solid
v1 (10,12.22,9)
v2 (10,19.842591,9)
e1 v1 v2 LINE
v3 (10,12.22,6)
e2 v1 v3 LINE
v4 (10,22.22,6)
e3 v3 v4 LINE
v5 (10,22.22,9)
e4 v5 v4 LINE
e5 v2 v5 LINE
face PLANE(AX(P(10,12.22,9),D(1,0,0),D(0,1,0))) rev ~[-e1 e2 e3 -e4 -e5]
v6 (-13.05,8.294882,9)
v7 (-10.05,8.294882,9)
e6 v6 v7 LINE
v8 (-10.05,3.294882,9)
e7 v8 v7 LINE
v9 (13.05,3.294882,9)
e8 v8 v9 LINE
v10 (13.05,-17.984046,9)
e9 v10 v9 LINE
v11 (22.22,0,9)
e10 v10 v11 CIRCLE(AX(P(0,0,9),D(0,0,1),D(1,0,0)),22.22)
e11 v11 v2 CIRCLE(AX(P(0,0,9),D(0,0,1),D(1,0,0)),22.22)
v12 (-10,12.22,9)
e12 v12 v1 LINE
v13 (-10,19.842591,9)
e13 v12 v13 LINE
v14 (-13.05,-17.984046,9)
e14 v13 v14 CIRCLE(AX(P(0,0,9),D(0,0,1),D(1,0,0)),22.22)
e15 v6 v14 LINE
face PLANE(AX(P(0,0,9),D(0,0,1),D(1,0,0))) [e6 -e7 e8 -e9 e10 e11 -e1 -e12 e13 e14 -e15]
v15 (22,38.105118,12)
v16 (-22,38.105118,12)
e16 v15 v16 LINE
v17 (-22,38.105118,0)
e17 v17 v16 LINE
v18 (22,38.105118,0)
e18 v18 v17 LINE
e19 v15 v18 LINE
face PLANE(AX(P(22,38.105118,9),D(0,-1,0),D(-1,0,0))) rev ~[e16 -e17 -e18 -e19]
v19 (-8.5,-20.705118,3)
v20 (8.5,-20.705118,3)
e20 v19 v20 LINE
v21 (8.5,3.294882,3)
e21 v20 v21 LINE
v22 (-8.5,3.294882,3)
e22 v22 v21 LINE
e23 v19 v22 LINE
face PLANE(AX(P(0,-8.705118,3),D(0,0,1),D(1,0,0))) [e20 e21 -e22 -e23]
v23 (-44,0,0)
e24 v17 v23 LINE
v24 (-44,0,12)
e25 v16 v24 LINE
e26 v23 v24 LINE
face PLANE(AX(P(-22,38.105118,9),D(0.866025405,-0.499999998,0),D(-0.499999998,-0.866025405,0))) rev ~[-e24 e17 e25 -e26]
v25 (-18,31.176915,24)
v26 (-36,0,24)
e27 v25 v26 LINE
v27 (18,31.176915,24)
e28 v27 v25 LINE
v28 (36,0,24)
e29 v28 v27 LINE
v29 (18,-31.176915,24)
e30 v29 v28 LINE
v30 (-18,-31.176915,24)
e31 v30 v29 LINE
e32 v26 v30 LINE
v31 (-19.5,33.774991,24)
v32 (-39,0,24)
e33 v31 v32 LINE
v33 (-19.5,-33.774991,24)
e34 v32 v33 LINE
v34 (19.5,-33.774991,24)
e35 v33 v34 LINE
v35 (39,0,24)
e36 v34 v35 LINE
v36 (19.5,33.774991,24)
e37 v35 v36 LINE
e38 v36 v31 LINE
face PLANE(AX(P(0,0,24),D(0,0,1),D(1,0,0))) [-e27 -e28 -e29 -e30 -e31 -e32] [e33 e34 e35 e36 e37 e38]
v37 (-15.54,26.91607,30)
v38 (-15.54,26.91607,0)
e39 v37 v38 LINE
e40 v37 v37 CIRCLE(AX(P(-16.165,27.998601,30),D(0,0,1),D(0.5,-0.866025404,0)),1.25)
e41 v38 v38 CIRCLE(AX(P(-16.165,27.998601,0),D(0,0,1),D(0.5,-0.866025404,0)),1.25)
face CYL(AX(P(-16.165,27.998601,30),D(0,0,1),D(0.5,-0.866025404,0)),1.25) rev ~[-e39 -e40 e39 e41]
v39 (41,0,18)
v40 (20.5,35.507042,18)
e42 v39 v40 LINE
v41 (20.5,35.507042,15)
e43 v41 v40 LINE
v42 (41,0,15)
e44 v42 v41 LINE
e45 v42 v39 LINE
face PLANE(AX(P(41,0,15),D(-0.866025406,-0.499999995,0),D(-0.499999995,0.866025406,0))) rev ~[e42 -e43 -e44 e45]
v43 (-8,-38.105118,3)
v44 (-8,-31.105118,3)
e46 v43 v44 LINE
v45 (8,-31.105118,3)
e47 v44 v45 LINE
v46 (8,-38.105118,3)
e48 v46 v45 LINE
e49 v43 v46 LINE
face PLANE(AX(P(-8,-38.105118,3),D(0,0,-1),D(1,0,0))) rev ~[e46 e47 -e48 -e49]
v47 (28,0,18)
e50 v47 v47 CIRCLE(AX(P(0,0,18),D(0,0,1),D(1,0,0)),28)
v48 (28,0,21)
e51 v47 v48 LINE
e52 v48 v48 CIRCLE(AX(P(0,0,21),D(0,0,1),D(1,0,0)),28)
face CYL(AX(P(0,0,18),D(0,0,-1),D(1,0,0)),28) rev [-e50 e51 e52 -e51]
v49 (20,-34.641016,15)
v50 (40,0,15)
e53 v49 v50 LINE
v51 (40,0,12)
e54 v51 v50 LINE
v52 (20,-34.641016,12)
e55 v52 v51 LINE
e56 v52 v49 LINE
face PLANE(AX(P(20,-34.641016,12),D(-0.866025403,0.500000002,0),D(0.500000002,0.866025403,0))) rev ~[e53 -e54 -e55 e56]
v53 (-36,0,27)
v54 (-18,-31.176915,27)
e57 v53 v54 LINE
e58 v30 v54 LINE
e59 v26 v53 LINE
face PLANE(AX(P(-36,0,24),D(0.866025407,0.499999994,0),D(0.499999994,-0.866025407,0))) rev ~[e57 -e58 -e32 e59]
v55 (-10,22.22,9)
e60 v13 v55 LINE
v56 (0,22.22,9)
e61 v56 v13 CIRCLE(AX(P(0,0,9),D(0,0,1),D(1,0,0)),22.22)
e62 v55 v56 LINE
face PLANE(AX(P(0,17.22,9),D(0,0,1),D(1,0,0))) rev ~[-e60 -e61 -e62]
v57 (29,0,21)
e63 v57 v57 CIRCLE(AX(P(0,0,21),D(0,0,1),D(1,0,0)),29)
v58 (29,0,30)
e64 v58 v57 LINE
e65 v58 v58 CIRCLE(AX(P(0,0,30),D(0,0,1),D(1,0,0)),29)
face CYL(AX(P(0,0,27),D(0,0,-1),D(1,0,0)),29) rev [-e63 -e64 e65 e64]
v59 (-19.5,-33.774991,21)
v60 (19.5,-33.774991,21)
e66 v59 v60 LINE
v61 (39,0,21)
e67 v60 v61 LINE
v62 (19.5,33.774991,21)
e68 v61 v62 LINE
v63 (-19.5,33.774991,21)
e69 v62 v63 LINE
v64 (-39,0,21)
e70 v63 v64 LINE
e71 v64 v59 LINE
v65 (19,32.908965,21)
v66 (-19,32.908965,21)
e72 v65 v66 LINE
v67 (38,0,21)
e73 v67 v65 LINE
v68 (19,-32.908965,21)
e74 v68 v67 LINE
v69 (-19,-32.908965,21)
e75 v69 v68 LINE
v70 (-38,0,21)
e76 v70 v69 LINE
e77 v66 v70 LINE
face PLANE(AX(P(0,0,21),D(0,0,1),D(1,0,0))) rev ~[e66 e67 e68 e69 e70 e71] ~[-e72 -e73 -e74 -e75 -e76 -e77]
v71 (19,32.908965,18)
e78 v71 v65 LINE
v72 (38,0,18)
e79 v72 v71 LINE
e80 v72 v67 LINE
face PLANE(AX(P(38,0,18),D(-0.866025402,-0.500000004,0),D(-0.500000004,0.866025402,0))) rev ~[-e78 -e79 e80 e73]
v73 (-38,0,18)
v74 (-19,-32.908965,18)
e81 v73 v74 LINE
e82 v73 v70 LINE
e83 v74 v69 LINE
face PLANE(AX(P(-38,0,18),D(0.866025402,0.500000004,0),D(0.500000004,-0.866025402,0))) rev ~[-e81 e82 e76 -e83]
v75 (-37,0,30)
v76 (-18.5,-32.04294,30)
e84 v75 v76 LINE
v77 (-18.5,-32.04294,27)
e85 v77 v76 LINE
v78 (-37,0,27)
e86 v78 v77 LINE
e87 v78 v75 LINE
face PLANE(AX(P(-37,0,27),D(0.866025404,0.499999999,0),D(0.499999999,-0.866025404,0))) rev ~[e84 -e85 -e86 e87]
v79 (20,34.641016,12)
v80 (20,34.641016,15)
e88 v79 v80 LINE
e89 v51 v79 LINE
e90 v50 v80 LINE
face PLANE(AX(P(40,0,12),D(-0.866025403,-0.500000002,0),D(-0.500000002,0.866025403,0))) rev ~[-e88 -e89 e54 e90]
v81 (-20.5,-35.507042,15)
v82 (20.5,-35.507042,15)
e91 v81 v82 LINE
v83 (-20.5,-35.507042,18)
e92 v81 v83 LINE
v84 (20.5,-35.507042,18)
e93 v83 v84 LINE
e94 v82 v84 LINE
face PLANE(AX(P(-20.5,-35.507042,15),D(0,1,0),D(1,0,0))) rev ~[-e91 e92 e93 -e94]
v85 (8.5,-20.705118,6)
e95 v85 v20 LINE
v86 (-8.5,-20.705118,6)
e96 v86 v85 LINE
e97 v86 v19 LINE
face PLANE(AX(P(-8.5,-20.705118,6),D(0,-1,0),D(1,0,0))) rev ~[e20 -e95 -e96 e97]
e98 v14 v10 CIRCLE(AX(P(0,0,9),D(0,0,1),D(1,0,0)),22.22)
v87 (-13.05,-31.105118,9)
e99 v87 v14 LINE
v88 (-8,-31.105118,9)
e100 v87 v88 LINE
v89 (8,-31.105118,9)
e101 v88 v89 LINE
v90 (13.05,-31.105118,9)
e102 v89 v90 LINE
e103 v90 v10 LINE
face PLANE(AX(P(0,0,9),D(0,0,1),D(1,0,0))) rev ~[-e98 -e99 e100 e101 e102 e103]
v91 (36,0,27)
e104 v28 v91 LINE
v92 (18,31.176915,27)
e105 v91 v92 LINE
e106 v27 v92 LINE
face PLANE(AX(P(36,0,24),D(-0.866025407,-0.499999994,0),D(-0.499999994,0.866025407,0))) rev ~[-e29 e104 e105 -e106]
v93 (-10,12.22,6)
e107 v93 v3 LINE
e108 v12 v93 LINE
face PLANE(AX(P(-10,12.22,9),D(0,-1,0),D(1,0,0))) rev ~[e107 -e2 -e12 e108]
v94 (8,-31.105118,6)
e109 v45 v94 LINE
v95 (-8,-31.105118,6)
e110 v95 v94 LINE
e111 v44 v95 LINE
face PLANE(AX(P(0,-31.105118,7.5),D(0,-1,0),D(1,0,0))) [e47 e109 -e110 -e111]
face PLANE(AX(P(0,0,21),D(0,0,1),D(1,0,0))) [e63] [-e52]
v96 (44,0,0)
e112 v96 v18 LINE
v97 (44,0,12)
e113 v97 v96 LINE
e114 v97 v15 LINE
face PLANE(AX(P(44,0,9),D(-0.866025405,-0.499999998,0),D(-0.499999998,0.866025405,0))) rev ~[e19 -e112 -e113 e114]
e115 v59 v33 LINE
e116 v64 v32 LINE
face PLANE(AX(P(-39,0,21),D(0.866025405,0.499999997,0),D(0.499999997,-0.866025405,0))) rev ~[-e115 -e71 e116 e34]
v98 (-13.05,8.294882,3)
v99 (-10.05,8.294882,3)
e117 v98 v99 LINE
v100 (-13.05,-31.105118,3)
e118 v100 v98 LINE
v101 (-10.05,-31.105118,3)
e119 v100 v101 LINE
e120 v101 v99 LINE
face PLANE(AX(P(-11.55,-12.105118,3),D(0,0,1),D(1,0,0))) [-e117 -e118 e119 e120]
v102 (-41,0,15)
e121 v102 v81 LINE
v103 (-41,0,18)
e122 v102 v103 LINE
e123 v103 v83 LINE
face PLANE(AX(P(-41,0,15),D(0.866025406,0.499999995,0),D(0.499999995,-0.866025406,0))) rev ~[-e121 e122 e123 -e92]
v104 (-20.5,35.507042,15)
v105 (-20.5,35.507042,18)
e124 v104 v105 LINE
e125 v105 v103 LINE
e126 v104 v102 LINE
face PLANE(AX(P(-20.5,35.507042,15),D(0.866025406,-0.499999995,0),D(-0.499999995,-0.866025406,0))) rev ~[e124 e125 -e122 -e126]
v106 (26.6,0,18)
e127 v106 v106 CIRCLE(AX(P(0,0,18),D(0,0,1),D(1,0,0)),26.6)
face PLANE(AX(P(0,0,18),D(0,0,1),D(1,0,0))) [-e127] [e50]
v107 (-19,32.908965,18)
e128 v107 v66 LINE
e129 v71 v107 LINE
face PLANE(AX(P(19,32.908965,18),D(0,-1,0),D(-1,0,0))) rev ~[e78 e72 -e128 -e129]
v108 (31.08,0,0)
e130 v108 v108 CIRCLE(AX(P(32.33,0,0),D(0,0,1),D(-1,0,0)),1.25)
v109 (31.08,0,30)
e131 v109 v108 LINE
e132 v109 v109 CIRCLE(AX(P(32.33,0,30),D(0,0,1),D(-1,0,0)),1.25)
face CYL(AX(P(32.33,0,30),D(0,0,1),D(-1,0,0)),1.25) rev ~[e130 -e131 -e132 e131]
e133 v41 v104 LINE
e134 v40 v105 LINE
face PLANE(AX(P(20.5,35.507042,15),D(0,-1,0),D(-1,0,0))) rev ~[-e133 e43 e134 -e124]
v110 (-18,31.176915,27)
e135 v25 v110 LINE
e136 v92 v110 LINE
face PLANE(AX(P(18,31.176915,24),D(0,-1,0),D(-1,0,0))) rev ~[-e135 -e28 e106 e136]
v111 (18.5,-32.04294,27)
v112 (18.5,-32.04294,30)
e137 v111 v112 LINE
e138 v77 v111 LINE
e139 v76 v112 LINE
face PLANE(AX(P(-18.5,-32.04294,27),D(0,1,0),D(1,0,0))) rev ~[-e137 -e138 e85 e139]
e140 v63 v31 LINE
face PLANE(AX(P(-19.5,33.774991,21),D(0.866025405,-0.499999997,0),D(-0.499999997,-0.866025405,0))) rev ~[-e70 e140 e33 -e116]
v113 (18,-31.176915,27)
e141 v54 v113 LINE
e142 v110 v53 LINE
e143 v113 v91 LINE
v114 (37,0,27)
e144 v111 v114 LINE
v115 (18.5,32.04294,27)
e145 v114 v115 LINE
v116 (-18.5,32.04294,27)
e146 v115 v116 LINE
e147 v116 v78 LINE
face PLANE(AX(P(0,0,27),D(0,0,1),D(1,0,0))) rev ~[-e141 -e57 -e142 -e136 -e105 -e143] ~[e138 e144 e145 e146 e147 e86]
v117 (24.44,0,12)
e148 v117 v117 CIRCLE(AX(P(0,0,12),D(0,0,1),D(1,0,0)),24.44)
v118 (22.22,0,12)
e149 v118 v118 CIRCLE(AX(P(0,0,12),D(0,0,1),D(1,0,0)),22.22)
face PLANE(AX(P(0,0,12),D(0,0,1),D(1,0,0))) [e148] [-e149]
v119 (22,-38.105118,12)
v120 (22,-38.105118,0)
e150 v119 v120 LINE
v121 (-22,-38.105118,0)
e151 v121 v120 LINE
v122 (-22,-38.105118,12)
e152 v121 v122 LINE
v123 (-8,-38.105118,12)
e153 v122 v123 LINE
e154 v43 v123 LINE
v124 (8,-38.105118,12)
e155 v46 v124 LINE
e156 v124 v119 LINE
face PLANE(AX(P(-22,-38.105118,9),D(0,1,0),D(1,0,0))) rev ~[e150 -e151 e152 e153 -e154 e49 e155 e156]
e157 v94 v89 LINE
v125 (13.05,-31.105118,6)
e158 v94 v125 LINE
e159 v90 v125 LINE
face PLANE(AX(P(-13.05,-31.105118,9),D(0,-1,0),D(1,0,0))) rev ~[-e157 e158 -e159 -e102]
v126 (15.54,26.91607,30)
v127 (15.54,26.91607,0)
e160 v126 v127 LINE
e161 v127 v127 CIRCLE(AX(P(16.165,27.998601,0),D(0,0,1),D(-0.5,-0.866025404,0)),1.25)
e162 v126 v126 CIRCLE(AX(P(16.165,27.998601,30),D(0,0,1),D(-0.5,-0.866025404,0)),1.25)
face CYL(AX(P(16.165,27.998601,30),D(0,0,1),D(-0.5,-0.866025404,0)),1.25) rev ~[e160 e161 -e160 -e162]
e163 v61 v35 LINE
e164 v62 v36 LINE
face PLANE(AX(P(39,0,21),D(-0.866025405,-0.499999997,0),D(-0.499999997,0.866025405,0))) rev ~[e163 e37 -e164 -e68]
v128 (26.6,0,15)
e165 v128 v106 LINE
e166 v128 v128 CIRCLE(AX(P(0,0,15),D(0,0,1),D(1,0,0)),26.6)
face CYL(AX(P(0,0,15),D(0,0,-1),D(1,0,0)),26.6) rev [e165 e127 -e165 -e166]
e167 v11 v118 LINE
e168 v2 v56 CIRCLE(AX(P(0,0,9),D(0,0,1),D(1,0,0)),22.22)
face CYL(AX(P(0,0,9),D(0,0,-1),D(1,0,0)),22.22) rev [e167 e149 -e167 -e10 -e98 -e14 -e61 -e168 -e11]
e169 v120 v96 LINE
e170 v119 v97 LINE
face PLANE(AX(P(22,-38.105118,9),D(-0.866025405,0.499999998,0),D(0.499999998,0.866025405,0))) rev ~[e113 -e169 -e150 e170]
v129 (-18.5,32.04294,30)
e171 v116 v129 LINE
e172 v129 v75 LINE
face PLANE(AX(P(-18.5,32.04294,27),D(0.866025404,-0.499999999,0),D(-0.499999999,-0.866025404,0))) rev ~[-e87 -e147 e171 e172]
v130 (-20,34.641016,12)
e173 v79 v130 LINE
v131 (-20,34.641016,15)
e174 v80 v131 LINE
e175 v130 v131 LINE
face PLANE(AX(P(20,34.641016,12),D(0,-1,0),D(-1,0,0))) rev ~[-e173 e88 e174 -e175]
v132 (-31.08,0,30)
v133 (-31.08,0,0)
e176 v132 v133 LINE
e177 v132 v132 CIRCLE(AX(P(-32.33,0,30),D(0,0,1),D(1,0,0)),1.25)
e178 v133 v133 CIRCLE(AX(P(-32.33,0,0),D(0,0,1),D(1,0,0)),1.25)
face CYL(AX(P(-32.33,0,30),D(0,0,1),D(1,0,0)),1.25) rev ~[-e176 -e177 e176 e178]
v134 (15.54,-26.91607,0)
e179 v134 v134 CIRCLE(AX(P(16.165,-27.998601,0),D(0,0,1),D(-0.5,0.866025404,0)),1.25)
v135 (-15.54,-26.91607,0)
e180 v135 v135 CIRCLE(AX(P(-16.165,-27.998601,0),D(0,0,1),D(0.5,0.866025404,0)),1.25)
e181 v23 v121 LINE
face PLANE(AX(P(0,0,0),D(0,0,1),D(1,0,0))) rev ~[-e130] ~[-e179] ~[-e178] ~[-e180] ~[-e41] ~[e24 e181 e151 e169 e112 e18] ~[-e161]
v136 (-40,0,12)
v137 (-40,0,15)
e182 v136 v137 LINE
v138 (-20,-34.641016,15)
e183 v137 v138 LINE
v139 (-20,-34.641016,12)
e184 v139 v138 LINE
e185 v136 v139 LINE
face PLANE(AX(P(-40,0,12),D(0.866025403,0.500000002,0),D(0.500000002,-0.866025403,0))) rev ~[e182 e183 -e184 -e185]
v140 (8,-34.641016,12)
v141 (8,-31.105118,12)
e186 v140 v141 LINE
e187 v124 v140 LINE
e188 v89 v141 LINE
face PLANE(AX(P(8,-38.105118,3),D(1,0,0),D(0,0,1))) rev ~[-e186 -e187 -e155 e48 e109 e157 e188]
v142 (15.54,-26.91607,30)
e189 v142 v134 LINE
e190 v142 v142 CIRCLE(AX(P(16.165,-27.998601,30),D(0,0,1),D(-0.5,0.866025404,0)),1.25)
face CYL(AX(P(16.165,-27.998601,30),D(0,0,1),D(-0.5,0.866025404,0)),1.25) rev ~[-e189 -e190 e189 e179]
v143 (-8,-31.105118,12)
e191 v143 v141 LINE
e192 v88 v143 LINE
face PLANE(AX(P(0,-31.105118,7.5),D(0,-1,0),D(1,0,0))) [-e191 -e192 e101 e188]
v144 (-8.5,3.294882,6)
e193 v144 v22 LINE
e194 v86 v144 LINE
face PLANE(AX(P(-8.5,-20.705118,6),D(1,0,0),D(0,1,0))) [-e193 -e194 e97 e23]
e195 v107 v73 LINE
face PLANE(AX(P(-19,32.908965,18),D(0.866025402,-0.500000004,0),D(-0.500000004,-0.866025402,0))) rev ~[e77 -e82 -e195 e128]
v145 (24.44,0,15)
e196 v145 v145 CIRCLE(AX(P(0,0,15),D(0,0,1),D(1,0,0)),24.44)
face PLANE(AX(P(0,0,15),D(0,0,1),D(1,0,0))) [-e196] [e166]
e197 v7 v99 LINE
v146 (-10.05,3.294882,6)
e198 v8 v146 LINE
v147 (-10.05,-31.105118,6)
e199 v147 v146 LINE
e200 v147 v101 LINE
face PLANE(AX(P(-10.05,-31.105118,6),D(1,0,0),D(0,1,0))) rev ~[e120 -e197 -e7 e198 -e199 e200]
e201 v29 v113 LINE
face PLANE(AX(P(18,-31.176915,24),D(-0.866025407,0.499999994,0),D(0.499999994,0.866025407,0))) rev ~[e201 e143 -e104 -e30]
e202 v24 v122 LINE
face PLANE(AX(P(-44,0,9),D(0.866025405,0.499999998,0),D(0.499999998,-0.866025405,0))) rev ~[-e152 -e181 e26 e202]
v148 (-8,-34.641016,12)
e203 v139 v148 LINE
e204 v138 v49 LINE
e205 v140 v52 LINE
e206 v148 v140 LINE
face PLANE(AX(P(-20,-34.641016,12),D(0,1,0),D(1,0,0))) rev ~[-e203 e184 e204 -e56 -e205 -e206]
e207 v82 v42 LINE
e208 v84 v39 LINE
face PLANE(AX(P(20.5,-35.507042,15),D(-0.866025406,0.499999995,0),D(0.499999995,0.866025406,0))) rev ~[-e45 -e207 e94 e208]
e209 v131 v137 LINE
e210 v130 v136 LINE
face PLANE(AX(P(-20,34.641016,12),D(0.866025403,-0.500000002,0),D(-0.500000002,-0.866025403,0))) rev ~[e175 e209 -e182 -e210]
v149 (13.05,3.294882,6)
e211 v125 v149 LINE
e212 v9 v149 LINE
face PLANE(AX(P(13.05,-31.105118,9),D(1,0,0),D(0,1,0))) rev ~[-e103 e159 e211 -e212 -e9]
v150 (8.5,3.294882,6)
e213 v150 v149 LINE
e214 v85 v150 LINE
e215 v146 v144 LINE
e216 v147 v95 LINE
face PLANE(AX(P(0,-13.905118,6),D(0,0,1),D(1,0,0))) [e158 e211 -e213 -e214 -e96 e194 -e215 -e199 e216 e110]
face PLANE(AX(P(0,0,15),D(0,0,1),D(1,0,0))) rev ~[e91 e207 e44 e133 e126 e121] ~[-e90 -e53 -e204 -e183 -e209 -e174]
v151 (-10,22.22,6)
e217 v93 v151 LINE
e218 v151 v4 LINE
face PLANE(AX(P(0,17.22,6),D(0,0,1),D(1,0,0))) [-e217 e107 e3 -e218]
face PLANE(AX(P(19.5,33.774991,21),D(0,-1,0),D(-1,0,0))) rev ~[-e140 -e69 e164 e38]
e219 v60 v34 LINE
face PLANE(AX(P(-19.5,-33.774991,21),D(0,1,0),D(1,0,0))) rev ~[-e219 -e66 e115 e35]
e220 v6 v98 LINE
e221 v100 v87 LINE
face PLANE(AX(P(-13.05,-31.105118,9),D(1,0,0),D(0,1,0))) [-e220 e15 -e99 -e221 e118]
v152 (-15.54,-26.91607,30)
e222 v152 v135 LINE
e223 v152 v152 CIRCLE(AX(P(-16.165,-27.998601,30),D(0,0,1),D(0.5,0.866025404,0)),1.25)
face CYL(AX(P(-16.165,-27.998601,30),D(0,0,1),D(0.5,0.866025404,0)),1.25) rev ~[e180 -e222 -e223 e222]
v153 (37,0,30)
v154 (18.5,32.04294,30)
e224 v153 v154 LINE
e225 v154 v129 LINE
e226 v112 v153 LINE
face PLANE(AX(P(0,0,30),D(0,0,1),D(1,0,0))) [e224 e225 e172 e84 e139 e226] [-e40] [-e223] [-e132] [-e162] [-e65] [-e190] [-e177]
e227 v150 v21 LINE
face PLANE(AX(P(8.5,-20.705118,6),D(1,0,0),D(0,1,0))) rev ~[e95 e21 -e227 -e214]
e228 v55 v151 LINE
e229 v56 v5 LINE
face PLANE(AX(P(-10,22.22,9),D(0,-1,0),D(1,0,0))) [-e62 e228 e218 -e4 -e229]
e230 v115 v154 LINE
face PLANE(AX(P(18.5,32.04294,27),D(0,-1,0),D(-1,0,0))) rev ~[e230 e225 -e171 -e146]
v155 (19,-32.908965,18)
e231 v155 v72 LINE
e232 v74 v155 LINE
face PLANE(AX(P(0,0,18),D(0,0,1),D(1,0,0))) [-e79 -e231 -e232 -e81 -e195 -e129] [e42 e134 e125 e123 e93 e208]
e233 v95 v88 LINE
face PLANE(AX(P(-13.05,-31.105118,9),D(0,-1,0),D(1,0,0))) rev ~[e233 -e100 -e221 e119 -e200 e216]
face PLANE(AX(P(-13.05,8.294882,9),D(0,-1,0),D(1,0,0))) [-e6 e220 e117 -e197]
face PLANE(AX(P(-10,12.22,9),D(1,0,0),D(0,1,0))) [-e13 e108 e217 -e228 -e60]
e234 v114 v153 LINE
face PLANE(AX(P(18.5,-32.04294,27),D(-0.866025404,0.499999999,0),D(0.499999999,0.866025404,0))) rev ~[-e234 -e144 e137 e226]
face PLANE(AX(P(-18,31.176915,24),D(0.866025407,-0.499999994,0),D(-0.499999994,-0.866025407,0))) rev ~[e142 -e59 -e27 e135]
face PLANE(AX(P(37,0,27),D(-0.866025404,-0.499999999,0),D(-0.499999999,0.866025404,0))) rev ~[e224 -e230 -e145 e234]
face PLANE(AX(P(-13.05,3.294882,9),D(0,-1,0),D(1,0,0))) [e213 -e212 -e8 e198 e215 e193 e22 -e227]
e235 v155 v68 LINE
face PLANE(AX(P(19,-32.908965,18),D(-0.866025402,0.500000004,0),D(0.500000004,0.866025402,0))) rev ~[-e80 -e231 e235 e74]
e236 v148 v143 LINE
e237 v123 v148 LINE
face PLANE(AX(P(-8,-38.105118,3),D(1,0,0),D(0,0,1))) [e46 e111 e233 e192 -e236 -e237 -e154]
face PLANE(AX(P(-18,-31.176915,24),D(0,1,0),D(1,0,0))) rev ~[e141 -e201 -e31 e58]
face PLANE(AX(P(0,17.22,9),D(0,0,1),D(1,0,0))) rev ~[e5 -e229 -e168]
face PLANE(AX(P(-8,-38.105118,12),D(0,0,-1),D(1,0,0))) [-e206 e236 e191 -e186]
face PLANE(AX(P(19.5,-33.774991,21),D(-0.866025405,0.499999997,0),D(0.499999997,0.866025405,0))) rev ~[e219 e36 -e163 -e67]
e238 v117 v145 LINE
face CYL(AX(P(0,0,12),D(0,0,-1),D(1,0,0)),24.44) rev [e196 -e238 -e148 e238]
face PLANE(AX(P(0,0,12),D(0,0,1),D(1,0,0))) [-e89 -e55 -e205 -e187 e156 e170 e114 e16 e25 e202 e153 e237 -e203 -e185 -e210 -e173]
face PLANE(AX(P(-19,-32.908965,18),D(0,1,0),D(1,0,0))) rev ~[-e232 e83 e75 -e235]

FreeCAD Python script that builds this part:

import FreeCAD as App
import Part
import Sketcher
from FreeCAD import Vector
Q = App.Units.Quantity

doc = App.newDocument("Part")
params = doc.addObject("Spreadsheet::Sheet", "Params")
for row, (alias, value) in enumerate([
    ("sketch1_width", "44 mm"),
    ("sketch1_length", "44 mm"),
    ("pad1_length", "9 mm"),
    ("sketch2_width", "26.1 mm"),
    ("sketch2_height", "34.4 mm"),
    ("pocket1_length", "3 mm"),
    ("sketch3_diameter", "44.44 mm"),
    ("sketch3_width", "44 mm"),
    ("sketch3_length", "44 mm"),
    ("pad2_length", "3 mm"),
    ("sketch4_diameter", "48.88 mm"),
    ("sketch4_width", "40 mm"),
    ("sketch4_length", "40 mm"),
    ("pad3_length", "3 mm"),
    ("sketch5_diameter", "53.2 mm"),
    ("sketch5_width", "41 mm"),
    ("sketch5_length", "41 mm"),
    ("pad4_length", "3 mm"),
    ("sketch6_diameter", "56 mm"),
    ("sketch6_width", "38 mm"),
    ("sketch6_length", "38 mm"),
    ("pad5_length", "3 mm"),
    ("sketch7_diameter", "58 mm"),
    ("sketch7_width", "39 mm"),
    ("sketch7_length", "39 mm"),
    ("pad6_length", "3 mm"),
    ("sketch8_diameter", "58 mm"),
    ("sketch8_width", "36 mm"),
    ("sketch8_length", "36 mm"),
    ("pad7_length", "3 mm"),
    ("sketch9_diameter", "58 mm"),
    ("sketch9_width", "37 mm"),
    ("sketch9_length", "37 mm"),
    ("pad8_length", "3 mm"),
    ("sketch10_width", "17 mm"),
    ("sketch10_height", "24 mm"),
    ("pocket2_length", "3 mm"),
    ("sketch11_width", "16 mm"),
    ("sketch11_height", "9 mm"),
    ("pocket3_length", "7 mm"),
    ("sketch12_width", "20 mm"),
    ("sketch12_height", "10 mm"),
    ("pocket4_length", "3 mm"),
    ("sketch13_diameter", "2.5 mm"),
    ("sketch14_width", "3 mm"),
    ("sketch14_height", "38 mm"),
    ("pocket6_length", "3 mm"),
    ("sketch15_width", "3 mm"),
    ("sketch15_height", "5 mm"),
    ("pocket7_length", "6 mm"),
], start=1):
    params.set(f"A{row}", alias)
    params.set(f"B{row}", "=" + value)
    params.setAlias(f"B{row}", alias)

body = doc.addObject("PartDesign::Body", "Body")

# Sketch on XY plane
sketch1 = doc.addObject("Sketcher::SketchObject", "Sketch")
body.addObject(sketch1)
sketch1.AttachmentSupport = (doc.XY_Plane, [""])
sketch1.MapMode = "FlatFace"
sketch1.addGeometry(Part.LineSegment(Vector(44, 0, 0), Vector(22, 38, 0)), False)
sketch1.addGeometry(Part.LineSegment(Vector(22, 38, 0), Vector(-22, 38, 0)), False)
sketch1.addGeometry(Part.LineSegment(Vector(-22, 38, 0), Vector(-44, 0, 0)), False)
sketch1.addGeometry(Part.LineSegment(Vector(-44, 0, 0), Vector(-22, -38, 0)), False)
sketch1.addGeometry(Part.LineSegment(Vector(-22, -38, 0), Vector(22, -38, 0)), False)
sketch1.addGeometry(Part.LineSegment(Vector(22, -38, 0), Vector(44, 0, 0)), False)
sketch1.addConstraint(Sketcher.Constraint("Coincident", 0, 2, 1, 1))
sketch1.addConstraint(Sketcher.Constraint("Coincident", 1, 2, 2, 1))
sketch1.addConstraint(Sketcher.Constraint("Coincident", 2, 2, 3, 1))
sketch1.addConstraint(Sketcher.Constraint("Coincident", 3, 2, 4, 1))
sketch1.addConstraint(Sketcher.Constraint("Coincident", 4, 2, 5, 1))
sketch1.addConstraint(Sketcher.Constraint("Coincident", 5, 2, 0, 1))
sketch1.addConstraint(Sketcher.Constraint("Horizontal", 1))
sketch1.addConstraint(Sketcher.Constraint("Horizontal", 4))
sketch1.addConstraint(Sketcher.Constraint("Symmetric", 0, 2, 3, 2, -1, 1))
sketch1.addConstraint(Sketcher.Constraint("Symmetric", 2, 2, 5, 2, -1, 1))
sketch1.addConstraint(Sketcher.Constraint("PointOnObject", 2, 2, -1))
sketch1.addConstraint(Sketcher.Constraint("Parallel", 2, 5))
sketch1.addConstraint(Sketcher.Constraint("Vertical", 1, 2, 3, 2))
sketch1.addConstraint(Sketcher.Constraint("DistanceX", 1, 2, 1, 1, Q("44 mm")))
sketch1.addConstraint(Sketcher.Constraint("Angle", 0, Q("120 deg")))
sketch1.addConstraint(Sketcher.Constraint("Distance", 0, Q("44 mm")))
sketch1.setExpression("Constraints[13]", "Params.sketch1_width")
sketch1.setExpression("Constraints[15]", "Params.sketch1_length")
pad1 = doc.addObject("PartDesign::Pad", "Pad")
body.addObject(pad1)
pad1.Profile = sketch1
pad1.setExpression("Length", "Params.pad1_length")

# Sketch on XY plane
sketch2 = doc.addObject("Sketcher::SketchObject", "Sketch001")
body.addObject(sketch2)
sketch2.AttachmentSupport = (doc.XY_Plane, [""])
sketch2.MapMode = "FlatFace"
sketch2.AttachmentOffset = App.Placement(Vector(0, 0, 9), App.Rotation())
sketch2.addGeometry(Part.LineSegment(Vector(-13, 3, 0), Vector(-13, -31, 0)), False)
sketch2.addGeometry(Part.LineSegment(Vector(-13, -31, 0), Vector(13, -31, 0)), False)
sketch2.addGeometry(Part.LineSegment(Vector(13, -31, 0), Vector(13, 3, 0)), False)
sketch2.addGeometry(Part.LineSegment(Vector(13, 3, 0), Vector(-13, 3, 0)), False)
sketch2.addConstraint(Sketcher.Constraint("Coincident", 0, 2, 1, 1))
sketch2.addConstraint(Sketcher.Constraint("Coincident", 1, 2, 2, 1))
sketch2.addConstraint(Sketcher.Constraint("Coincident", 2, 2, 3, 1))
sketch2.addConstraint(Sketcher.Constraint("Coincident", 3, 2, 0, 1))
sketch2.addConstraint(Sketcher.Constraint("Vertical", 0))
sketch2.addConstraint(Sketcher.Constraint("Horizontal", 1))
sketch2.addConstraint(Sketcher.Constraint("Vertical", 2))
sketch2.addConstraint(Sketcher.Constraint("Horizontal", 3))
sketch2.addConstraint(Sketcher.Constraint("DistanceX", 1, 1, 1, 2, Q("26.1 mm")))
sketch2.addConstraint(Sketcher.Constraint("DistanceY", 0, 2, 0, 1, Q("34.4 mm")))
sketch2.addConstraint(Sketcher.Constraint("DistanceX", 0, 2, -1, 1, Q("13.05 mm")))
sketch2.addConstraint(Sketcher.Constraint("DistanceY", 0, 2, -1, 1, Q("31.105118 mm")))
sketch2.setExpression("Constraints[8]", "Params.sketch2_width")
sketch2.setExpression("Constraints[9]", "Params.sketch2_height")
pocket1 = doc.addObject("PartDesign::Pocket", "Pocket")
body.addObject(pocket1)
pocket1.Profile = sketch2
pocket1.setExpression("Length", "Params.pocket1_length")

# Sketch on XY plane
sketch3 = doc.addObject("Sketcher::SketchObject", "Sketch002")
body.addObject(sketch3)
sketch3.AttachmentSupport = (doc.XY_Plane, [""])
sketch3.MapMode = "FlatFace"
sketch3.AttachmentOffset = App.Placement(Vector(0, 0, 9), App.Rotation())
sketch3.addGeometry(Part.LineSegment(Vector(22, 38, 0), Vector(-22, 38, 0)), False)
sketch3.addGeometry(Part.LineSegment(Vector(-22, 38, 0), Vector(-44, 0, 0)), False)
sketch3.addGeometry(Part.LineSegment(Vector(-44, 0, 0), Vector(-22, -38, 0)), False)
sketch3.addGeometry(Part.LineSegment(Vector(-22, -38, 0), Vector(22, -38, 0)), False)
sketch3.addGeometry(Part.LineSegment(Vector(22, -38, 0), Vector(44, 0, 0)), False)
sketch3.addGeometry(Part.LineSegment(Vector(44, 0, 0), Vector(22, 38, 0)), False)
sketch3.addGeometry(Part.Circle(Vector(0, 0, 0), Vector(0, 0, 1), 22), False)
sketch3.addConstraint(Sketcher.Constraint("Coincident", 0, 2, 1, 1))
sketch3.addConstraint(Sketcher.Constraint("Coincident", 1, 2, 2, 1))
sketch3.addConstraint(Sketcher.Constraint("Coincident", 2, 2, 3, 1))
sketch3.addConstraint(Sketcher.Constraint("Coincident", 3, 2, 4, 1))
sketch3.addConstraint(Sketcher.Constraint("Coincident", 4, 2, 5, 1))
sketch3.addConstraint(Sketcher.Constraint("Coincident", 5, 2, 0, 1))
sketch3.addConstraint(Sketcher.Constraint("Horizontal", 0))
sketch3.addConstraint(Sketcher.Constraint("Horizontal", 3))
sketch3.addConstraint(Sketcher.Constraint("Coincident", 6, 3, -1, 1))
sketch3.addConstraint(Sketcher.Constraint("Symmetric", 0, 2, 3, 2, -1, 1))
sketch3.addConstraint(Sketcher.Constraint("Symmetric", 1, 2, 4, 2, -1, 1))
sketch3.addConstraint(Sketcher.Constraint("PointOnObject", 1, 2, -1))
sketch3.addConstraint(Sketcher.Constraint("Parallel", 2, 5))
sketch3.addConstraint(Sketcher.Constraint("Vertical", 0, 2, 2, 2))
sketch3.addConstraint(Sketcher.Constraint("Diameter", 6, Q("44.44 mm")))
sketch3.addConstraint(Sketcher.Constraint("DistanceX", 0, 2, 0, 1, Q("44 mm")))
sketch3.addConstraint(Sketcher.Constraint("Angle", 1, Q("-120 deg")))
sketch3.addConstraint(Sketcher.Constraint("Distance", 1, Q("44 mm")))
sketch3.setExpression("Constraints[14]", "Params.sketch3_diameter")
sketch3.setExpression("Constraints[15]", "Params.sketch3_width")
sketch3.setExpression("Constraints[17]", "Params.sketch3_length")
pad2 = doc.addObject("PartDesign::Pad", "Pad001")
body.addObject(pad2)
pad2.Profile = sketch3
pad2.setExpression("Length", "Params.pad2_length")

# Sketch on XY plane
sketch4 = doc.addObject("Sketcher::SketchObject", "Sketch003")
body.addObject(sketch4)
sketch4.AttachmentSupport = (doc.XY_Plane, [""])
sketch4.MapMode = "FlatFace"
sketch4.AttachmentOffset = App.Placement(Vector(0, 0, 12), App.Rotation())
sketch4.addGeometry(Part.LineSegment(Vector(40, 0, 0), Vector(20, 35, 0)), False)
sketch4.addGeometry(Part.LineSegment(Vector(20, 35, 0), Vector(-20, 35, 0)), False)
sketch4.addGeometry(Part.LineSegment(Vector(-20, 35, 0), Vector(-40, 0, 0)), False)
sketch4.addGeometry(Part.LineSegment(Vector(-40, 0, 0), Vector(-20, -35, 0)), False)
sketch4.addGeometry(Part.LineSegment(Vector(-20, -35, 0), Vector(20, -35, 0)), False)
sketch4.addGeometry(Part.LineSegment(Vector(20, -35, 0), Vector(40, 0, 0)), False)
sketch4.addGeometry(Part.Circle(Vector(0, 0, 0), Vector(0, 0, 1), 24), False)
sketch4.addConstraint(Sketcher.Constraint("Coincident", 0, 2, 1, 1))
sketch4.addConstraint(Sketcher.Constraint("Coincident", 1, 2, 2, 1))
sketch4.addConstraint(Sketcher.Constraint("Coincident", 2, 2, 3, 1))
sketch4.addConstraint(Sketcher.Constraint("Coincident", 3, 2, 4, 1))
sketch4.addConstraint(Sketcher.Constraint("Coincident", 4, 2, 5, 1))
sketch4.addConstraint(Sketcher.Constraint("Coincident", 5, 2, 0, 1))
sketch4.addConstraint(Sketcher.Constraint("Horizontal", 1))
sketch4.addConstraint(Sketcher.Constraint("Horizontal", 4))
sketch4.addConstraint(Sketcher.Constraint("Coincident", 6, 3, -1, 1))
sketch4.addConstraint(Sketcher.Constraint("Symmetric", 0, 2, 3, 2, -1, 1))
sketch4.addConstraint(Sketcher.Constraint("Symmetric", 2, 2, 5, 2, -1, 1))
sketch4.addConstraint(Sketcher.Constraint("PointOnObject", 2, 2, -1))
sketch4.addConstraint(Sketcher.Constraint("Parallel", 2, 5))
sketch4.addConstraint(Sketcher.Constraint("Vertical", 1, 2, 3, 2))
sketch4.addConstraint(Sketcher.Constraint("Diameter", 6, Q("48.88 mm")))
sketch4.addConstraint(Sketcher.Constraint("DistanceX", 1, 2, 1, 1, Q("40 mm")))
sketch4.addConstraint(Sketcher.Constraint("Angle", 0, Q("120 deg")))
sketch4.addConstraint(Sketcher.Constraint("Distance", 0, Q("40 mm")))
sketch4.setExpression("Constraints[14]", "Params.sketch4_diameter")
sketch4.setExpression("Constraints[15]", "Params.sketch4_width")
sketch4.setExpression("Constraints[17]", "Params.sketch4_length")
pad3 = doc.addObject("PartDesign::Pad", "Pad002")
body.addObject(pad3)
pad3.Profile = sketch4
pad3.setExpression("Length", "Params.pad3_length")

# Sketch on XY plane
sketch5 = doc.addObject("Sketcher::SketchObject", "Sketch004")
body.addObject(sketch5)
sketch5.AttachmentSupport = (doc.XY_Plane, [""])
sketch5.MapMode = "FlatFace"
sketch5.AttachmentOffset = App.Placement(Vector(0, 0, 15), App.Rotation())
sketch5.addGeometry(Part.LineSegment(Vector(41, 0, 0), Vector(20, 36, 0)), False)
sketch5.addGeometry(Part.LineSegment(Vector(20, 36, 0), Vector(-20, 36, 0)), False)
sketch5.addGeometry(Part.LineSegment(Vector(-20, 36, 0), Vector(-41, 0, 0)), False)
sketch5.addGeometry(Part.LineSegment(Vector(-41, 0, 0), Vector(-20, -36, 0)), False)
sketch5.addGeometry(Part.LineSegment(Vector(-20, -36, 0), Vector(20, -36, 0)), False)
sketch5.addGeometry(Part.LineSegment(Vector(20, -36, 0), Vector(41, 0, 0)), False)
sketch5.addGeometry(Part.Circle(Vector(0, 0, 0), Vector(0, 0, 1), 27), False)
sketch5.addConstraint(Sketcher.Constraint("Coincident", 0, 2, 1, 1))
sketch5.addConstraint(Sketcher.Constraint("Coincident", 1, 2, 2, 1))
sketch5.addConstraint(Sketcher.Constraint("Coincident", 2, 2, 3, 1))
sketch5.addConstraint(Sketcher.Constraint("Coincident", 3, 2, 4, 1))
sketch5.addConstraint(Sketcher.Constraint("Coincident", 4, 2, 5, 1))
sketch5.addConstraint(Sketcher.Constraint("Coincident", 5, 2, 0, 1))
sketch5.addConstraint(Sketcher.Constraint("Horizontal", 1))
sketch5.addConstraint(Sketcher.Constraint("Horizontal", 4))
sketch5.addConstraint(Sketcher.Constraint("Coincident", 6, 3, -1, 1))
sketch5.addConstraint(Sketcher.Constraint("Symmetric", 0, 2, 3, 2, -1, 1))
sketch5.addConstraint(Sketcher.Constraint("Symmetric", 2, 2, 5, 2, -1, 1))
sketch5.addConstraint(Sketcher.Constraint("PointOnObject", 2, 2, -1))
sketch5.addConstraint(Sketcher.Constraint("Parallel", 2, 5))
sketch5.addConstraint(Sketcher.Constraint("Vertical", 1, 2, 3, 2))
sketch5.addConstraint(Sketcher.Constraint("Diameter", 6, Q("53.2 mm")))
sketch5.addConstraint(Sketcher.Constraint("DistanceX", 1, 2, 1, 1, Q("41 mm")))
sketch5.addConstraint(Sketcher.Constraint("Angle", 0, Q("120 deg")))
sketch5.addConstraint(Sketcher.Constraint("Distance", 0, Q("41 mm")))
sketch5.setExpression("Constraints[14]", "Params.sketch5_diameter")
sketch5.setExpression("Constraints[15]", "Params.sketch5_width")
sketch5.setExpression("Constraints[17]", "Params.sketch5_length")
pad4 = doc.addObject("PartDesign::Pad", "Pad003")
body.addObject(pad4)
pad4.Profile = sketch5
pad4.setExpression("Length", "Params.pad4_length")

# Sketch on XY plane
sketch6 = doc.addObject("Sketcher::SketchObject", "Sketch005")
body.addObject(sketch6)
sketch6.AttachmentSupport = (doc.XY_Plane, [""])
sketch6.MapMode = "FlatFace"
sketch6.AttachmentOffset = App.Placement(Vector(0, 0, 18), App.Rotation())
sketch6.addGeometry(Part.LineSegment(Vector(19, 33, 0), Vector(-19, 33, 0)), False)
sketch6.addGeometry(Part.LineSegment(Vector(-19, 33, 0), Vector(-38, 0, 0)), False)
sketch6.addGeometry(Part.LineSegment(Vector(-38, 0, 0), Vector(-19, -33, 0)), False)
sketch6.addGeometry(Part.LineSegment(Vector(-19, -33, 0), Vector(19, -33, 0)), False)
sketch6.addGeometry(Part.LineSegment(Vector(19, -33, 0), Vector(38, 0, 0)), False)
sketch6.addGeometry(Part.LineSegment(Vector(38, 0, 0), Vector(19, 33, 0)), False)
sketch6.addGeometry(Part.Circle(Vector(0, 0, 0), Vector(0, 0, 1), 28), False)
sketch6.addConstraint(Sketcher.Constraint("Coincident", 0, 2, 1, 1))
sketch6.addConstraint(Sketcher.Constraint("Coincident", 1, 2, 2, 1))
sketch6.addConstraint(Sketcher.Constraint("Coincident", 2, 2, 3, 1))
sketch6.addConstraint(Sketcher.Constraint("Coincident", 3, 2, 4, 1))
sketch6.addConstraint(Sketcher.Constraint("Coincident", 4, 2, 5, 1))
sketch6.addConstraint(Sketcher.Constraint("Coincident", 5, 2, 0, 1))
sketch6.addConstraint(Sketcher.Constraint("Horizontal", 0))
sketch6.addConstraint(Sketcher.Constraint("Horizontal", 3))
sketch6.addConstraint(Sketcher.Constraint("Coincident", 6, 3, -1, 1))
sketch6.addConstraint(Sketcher.Constraint("Symmetric", 0, 2, 3, 2, -1, 1))
sketch6.addConstraint(Sketcher.Constraint("Symmetric", 1, 2, 4, 2, -1, 1))
sketch6.addConstraint(Sketcher.Constraint("PointOnObject", 1, 2, -1))
sketch6.addConstraint(Sketcher.Constraint("Parallel", 2, 5))
sketch6.addConstraint(Sketcher.Constraint("Vertical", 0, 2, 2, 2))
sketch6.addConstraint(Sketcher.Constraint("Diameter", 6, Q("56 mm")))
sketch6.addConstraint(Sketcher.Constraint("DistanceX", 0, 2, 0, 1, Q("38 mm")))
sketch6.addConstraint(Sketcher.Constraint("Angle", 1, Q("-120 deg")))
sketch6.addConstraint(Sketcher.Constraint("Distance", 1, Q("38 mm")))
sketch6.setExpression("Constraints[14]", "Params.sketch6_diameter")
sketch6.setExpression("Constraints[15]", "Params.sketch6_width")
sketch6.setExpression("Constraints[17]", "Params.sketch6_length")
pad5 = doc.addObject("PartDesign::Pad", "Pad004")
body.addObject(pad5)
pad5.Profile = sketch6
pad5.setExpression("Length", "Params.pad5_length")

# Sketch on XY plane
sketch7 = doc.addObject("Sketcher::SketchObject", "Sketch006")
body.addObject(sketch7)
sketch7.AttachmentSupport = (doc.XY_Plane, [""])
sketch7.MapMode = "FlatFace"
sketch7.AttachmentOffset = App.Placement(Vector(0, 0, 21), App.Rotation())
sketch7.addGeometry(Part.LineSegment(Vector(39, 0, 0), Vector(20, 34, 0)), False)
sketch7.addGeometry(Part.LineSegment(Vector(20, 34, 0), Vector(-20, 34, 0)), False)
sketch7.addGeometry(Part.LineSegment(Vector(-20, 34, 0), Vector(-39, 0, 0)), False)
sketch7.addGeometry(Part.LineSegment(Vector(-39, 0, 0), Vector(-20, -34, 0)), False)
sketch7.addGeometry(Part.LineSegment(Vector(-20, -34, 0), Vector(20, -34, 0)), False)
sketch7.addGeometry(Part.LineSegment(Vector(20, -34, 0), Vector(39, 0, 0)), False)
sketch7.addGeometry(Part.Circle(Vector(0, 0, 0), Vector(0, 0, 1), 29), False)
sketch7.addConstraint(Sketcher.Constraint("Coincident", 0, 2, 1, 1))
sketch7.addConstraint(Sketcher.Constraint("Coincident", 1, 2, 2, 1))
sketch7.addConstraint(Sketcher.Constraint("Coincident", 2, 2, 3, 1))
sketch7.addConstraint(Sketcher.Constraint("Coincident", 3, 2, 4, 1))
sketch7.addConstraint(Sketcher.Constraint("Coincident", 4, 2, 5, 1))
sketch7.addConstraint(Sketcher.Constraint("Coincident", 5, 2, 0, 1))
sketch7.addConstraint(Sketcher.Constraint("Horizontal", 1))
sketch7.addConstraint(Sketcher.Constraint("Horizontal", 4))
sketch7.addConstraint(Sketcher.Constraint("Coincident", 6, 3, -1, 1))
sketch7.addConstraint(Sketcher.Constraint("Symmetric", 0, 2, 3, 2, -1, 1))
sketch7.addConstraint(Sketcher.Constraint("Symmetric", 2, 2, 5, 2, -1, 1))
sketch7.addConstraint(Sketcher.Constraint("PointOnObject", 2, 2, -1))
sketch7.addConstraint(Sketcher.Constraint("Parallel", 2, 5))
sketch7.addConstraint(Sketcher.Constraint("Vertical", 1, 2, 3, 2))
sketch7.addConstraint(Sketcher.Constraint("Diameter", 6, Q("58 mm")))
sketch7.addConstraint(Sketcher.Constraint("DistanceX", 1, 2, 1, 1, Q("39 mm")))
sketch7.addConstraint(Sketcher.Constraint("Angle", 0, Q("120 deg")))
sketch7.addConstraint(Sketcher.Constraint("Distance", 0, Q("39 mm")))
sketch7.setExpression("Constraints[14]", "Params.sketch7_diameter")
sketch7.setExpression("Constraints[15]", "Params.sketch7_width")
sketch7.setExpression("Constraints[17]", "Params.sketch7_length")
pad6 = doc.addObject("PartDesign::Pad", "Pad005")
body.addObject(pad6)
pad6.Profile = sketch7
pad6.setExpression("Length", "Params.pad6_length")

# Sketch on XY plane
sketch8 = doc.addObject("Sketcher::SketchObject", "Sketch007")
body.addObject(sketch8)
sketch8.AttachmentSupport = (doc.XY_Plane, [""])
sketch8.MapMode = "FlatFace"
sketch8.AttachmentOffset = App.Placement(Vector(0, 0, 24), App.Rotation())
sketch8.addGeometry(Part.LineSegment(Vector(36, 0, 0), Vector(18, 31, 0)), False)
sketch8.addGeometry(Part.LineSegment(Vector(18, 31, 0), Vector(-18, 31, 0)), False)
sketch8.addGeometry(Part.LineSegment(Vector(-18, 31, 0), Vector(-36, 0, 0)), False)
sketch8.addGeometry(Part.LineSegment(Vector(-36, 0, 0), Vector(-18, -31, 0)), False)
sketch8.addGeometry(Part.LineSegment(Vector(-18, -31, 0), Vector(18, -31, 0)), False)
sketch8.addGeometry(Part.LineSegment(Vector(18, -31, 0), Vector(36, 0, 0)), False)
sketch8.addGeometry(Part.Circle(Vector(0, 0, 0), Vector(0, 0, 1), 29), False)
sketch8.addConstraint(Sketcher.Constraint("Coincident", 0, 2, 1, 1))
sketch8.addConstraint(Sketcher.Constraint("Coincident", 1, 2, 2, 1))
sketch8.addConstraint(Sketcher.Constraint("Coincident", 2, 2, 3, 1))
sketch8.addConstraint(Sketcher.Constraint("Coincident", 3, 2, 4, 1))
sketch8.addConstraint(Sketcher.Constraint("Coincident", 4, 2, 5, 1))
sketch8.addConstraint(Sketcher.Constraint("Coincident", 5, 2, 0, 1))
sketch8.addConstraint(Sketcher.Constraint("Horizontal", 1))
sketch8.addConstraint(Sketcher.Constraint("Horizontal", 4))
sketch8.addConstraint(Sketcher.Constraint("Coincident", 6, 3, -1, 1))
sketch8.addConstraint(Sketcher.Constraint("Symmetric", 0, 2, 3, 2, -1, 1))
sketch8.addConstraint(Sketcher.Constraint("Symmetric", 2, 2, 5, 2, -1, 1))
sketch8.addConstraint(Sketcher.Constraint("PointOnObject", 2, 2, -1))
sketch8.addConstraint(Sketcher.Constraint("Parallel", 2, 5))
sketch8.addConstraint(Sketcher.Constraint("Vertical", 1, 2, 3, 2))
sketch8.addConstraint(Sketcher.Constraint("Diameter", 6, Q("58 mm")))
sketch8.addConstraint(Sketcher.Constraint("DistanceX", 1, 2, 1, 1, Q("36 mm")))
sketch8.addConstraint(Sketcher.Constraint("Angle", 0, Q("120 deg")))
sketch8.addConstraint(Sketcher.Constraint("Distance", 0, Q("36 mm")))
sketch8.setExpression("Constraints[14]", "Params.sketch8_diameter")
sketch8.setExpression("Constraints[15]", "Params.sketch8_width")
sketch8.setExpression("Constraints[17]", "Params.sketch8_length")
pad7 = doc.addObject("PartDesign::Pad", "Pad006")
body.addObject(pad7)
pad7.Profile = sketch8
pad7.setExpression("Length", "Params.pad7_length")

# Sketch on XY plane
sketch9 = doc.addObject("Sketcher::SketchObject", "Sketch008")
body.addObject(sketch9)
sketch9.AttachmentSupport = (doc.XY_Plane, [""])
sketch9.MapMode = "FlatFace"
sketch9.AttachmentOffset = App.Placement(Vector(0, 0, 27), App.Rotation())
sketch9.addGeometry(Part.LineSegment(Vector(37, 0, 0), Vector(18, 32, 0)), False)
sketch9.addGeometry(Part.LineSegment(Vector(18, 32, 0), Vector(-18, 32, 0)), False)
sketch9.addGeometry(Part.LineSegment(Vector(-18, 32, 0), Vector(-37, 0, 0)), False)
sketch9.addGeometry(Part.LineSegment(Vector(-37, 0, 0), Vector(-18, -32, 0)), False)
sketch9.addGeometry(Part.LineSegment(Vector(-18, -32, 0), Vector(18, -32, 0)), False)
sketch9.addGeometry(Part.LineSegment(Vector(18, -32, 0), Vector(37, 0, 0)), False)
sketch9.addGeometry(Part.Circle(Vector(0, 0, 0), Vector(0, 0, 1), 29), False)
sketch9.addConstraint(Sketcher.Constraint("Coincident", 0, 2, 1, 1))
sketch9.addConstraint(Sketcher.Constraint("Coincident", 1, 2, 2, 1))
sketch9.addConstraint(Sketcher.Constraint("Coincident", 2, 2, 3, 1))
sketch9.addConstraint(Sketcher.Constraint("Coincident", 3, 2, 4, 1))
sketch9.addConstraint(Sketcher.Constraint("Coincident", 4, 2, 5, 1))
sketch9.addConstraint(Sketcher.Constraint("Coincident", 5, 2, 0, 1))
sketch9.addConstraint(Sketcher.Constraint("Horizontal", 1))
sketch9.addConstraint(Sketcher.Constraint("Horizontal", 4))
sketch9.addConstraint(Sketcher.Constraint("Coincident", 6, 3, -1, 1))
sketch9.addConstraint(Sketcher.Constraint("Symmetric", 0, 2, 3, 2, -1, 1))
sketch9.addConstraint(Sketcher.Constraint("Symmetric", 2, 2, 5, 2, -1, 1))
sketch9.addConstraint(Sketcher.Constraint("PointOnObject", 2, 2, -1))
sketch9.addConstraint(Sketcher.Constraint("Parallel", 2, 5))
sketch9.addConstraint(Sketcher.Constraint("Vertical", 1, 2, 3, 2))
sketch9.addConstraint(Sketcher.Constraint("Diameter", 6, Q("58 mm")))
sketch9.addConstraint(Sketcher.Constraint("DistanceX", 1, 2, 1, 1, Q("37 mm")))
sketch9.addConstraint(Sketcher.Constraint("Angle", 0, Q("120 deg")))
sketch9.addConstraint(Sketcher.Constraint("Distance", 0, Q("37 mm")))
sketch9.setExpression("Constraints[14]", "Params.sketch9_diameter")
sketch9.setExpression("Constraints[15]", "Params.sketch9_width")
sketch9.setExpression("Constraints[17]", "Params.sketch9_length")
pad8 = doc.addObject("PartDesign::Pad", "Pad007")
body.addObject(pad8)
pad8.Profile = sketch9
pad8.setExpression("Length", "Params.pad8_length")

# Sketch on XY plane
sketch10 = doc.addObject("Sketcher::SketchObject", "Sketch009")
body.addObject(sketch10)
sketch10.AttachmentSupport = (doc.XY_Plane, [""])
sketch10.MapMode = "FlatFace"
sketch10.AttachmentOffset = App.Placement(Vector(0, 0, 6), App.Rotation())
sketch10.addGeometry(Part.LineSegment(Vector(-8, 3, 0), Vector(-8, -21, 0)), False)
sketch10.addGeometry(Part.LineSegment(Vector(-8, -21, 0), Vector(8, -21, 0)), False)
sketch10.addGeometry(Part.LineSegment(Vector(8, -21, 0), Vector(8, 3, 0)), False)
sketch10.addGeometry(Part.LineSegment(Vector(8, 3, 0), Vector(-8, 3, 0)), False)
sketch10.addConstraint(Sketcher.Constraint("Coincident", 0, 2, 1, 1))
sketch10.addConstraint(Sketcher.Constraint("Coincident", 1, 2, 2, 1))
sketch10.addConstraint(Sketcher.Constraint("Coincident", 2, 2, 3, 1))
sketch10.addConstraint(Sketcher.Constraint("Coincident", 3, 2, 0, 1))
sketch10.addConstraint(Sketcher.Constraint("Vertical", 0))
sketch10.addConstraint(Sketcher.Constraint("Horizontal", 1))
sketch10.addConstraint(Sketcher.Constraint("Vertical", 2))
sketch10.addConstraint(Sketcher.Constraint("Horizontal", 3))
sketch10.addConstraint(Sketcher.Constraint("DistanceX", 1, 1, 1, 2, Q("17 mm")))
sketch10.addConstraint(Sketcher.Constraint("DistanceY", 0, 2, 0, 1, Q("24 mm")))
sketch10.addConstraint(Sketcher.Constraint("DistanceX", 0, 2, -1, 1, Q("8.5 mm")))
sketch10.addConstraint(Sketcher.Constraint("DistanceY", -1, 1, 2, 2, Q("3.294882 mm")))
sketch10.setExpression("Constraints[8]", "Params.sketch10_width")
sketch10.setExpression("Constraints[9]", "Params.sketch10_height")
pocket2 = doc.addObject("PartDesign::Pocket", "Pocket001")
body.addObject(pocket2)
pocket2.Profile = sketch10
pocket2.setExpression("Length", "Params.pocket2_length")

# Sketch on XZ plane
sketch11 = doc.addObject("Sketcher::SketchObject", "Sketch010")
body.addObject(sketch11)
sketch11.AttachmentSupport = (doc.XZ_Plane, [""])
sketch11.MapMode = "FlatFace"
sketch11.AttachmentOffset = App.Placement(Vector(0, 0, 38.105118), App.Rotation())
sketch11.addGeometry(Part.LineSegment(Vector(-8, 12, 0), Vector(-8, 3, 0)), False)
sketch11.addGeometry(Part.LineSegment(Vector(-8, 3, 0), Vector(8, 3, 0)), False)
sketch11.addGeometry(Part.LineSegment(Vector(8, 3, 0), Vector(8, 12, 0)), False)
sketch11.addGeometry(Part.LineSegment(Vector(8, 12, 0), Vector(-8, 12, 0)), False)
sketch11.addConstraint(Sketcher.Constraint("Coincident", 0, 2, 1, 1))
sketch11.addConstraint(Sketcher.Constraint("Coincident", 1, 2, 2, 1))
sketch11.addConstraint(Sketcher.Constraint("Coincident", 2, 2, 3, 1))
sketch11.addConstraint(Sketcher.Constraint("Coincident", 3, 2, 0, 1))
sketch11.addConstraint(Sketcher.Constraint("Vertical", 0))
sketch11.addConstraint(Sketcher.Constraint("Horizontal", 1))
sketch11.addConstraint(Sketcher.Constraint("Vertical", 2))
sketch11.addConstraint(Sketcher.Constraint("Horizontal", 3))
sketch11.addConstraint(Sketcher.Constraint("DistanceX", 1, 1, 1, 2, Q("16 mm")))
sketch11.addConstraint(Sketcher.Constraint("DistanceY", 0, 2, 0, 1, Q("9 mm")))
sketch11.addConstraint(Sketcher.Constraint("DistanceX", 0, 2, -1, 1, Q("8 mm")))
sketch11.addConstraint(Sketcher.Constraint("DistanceY", -1, 1, 0, 2, Q("3 mm")))
sketch11.setExpression("Constraints[8]", "Params.sketch11_width")
sketch11.setExpression("Constraints[9]", "Params.sketch11_height")
pocket3 = doc.addObject("PartDesign::Pocket", "Pocket002")
body.addObject(pocket3)
pocket3.Profile = sketch11
pocket3.setExpression("Length", "Params.pocket3_length")

# Sketch on XY plane
sketch12 = doc.addObject("Sketcher::SketchObject", "Sketch011")
body.addObject(sketch12)
sketch12.AttachmentSupport = (doc.XY_Plane, [""])
sketch12.MapMode = "FlatFace"
sketch12.AttachmentOffset = App.Placement(Vector(0, 0, 9), App.Rotation())
sketch12.addGeometry(Part.LineSegment(Vector(-10, 22, 0), Vector(-10, 12, 0)), False)
sketch12.addGeometry(Part.LineSegment(Vector(-10, 12, 0), Vector(10, 12, 0)), False)
sketch12.addGeometry(Part.LineSegment(Vector(10, 12, 0), Vector(10, 22, 0)), False)
sketch12.addGeometry(Part.LineSegment(Vector(10, 22, 0), Vector(-10, 22, 0)), False)
sketch12.addConstraint(Sketcher.Constraint("Coincident", 0, 2, 1, 1))
sketch12.addConstraint(Sketcher.Constraint("Coincident", 1, 2, 2, 1))
sketch12.addConstraint(Sketcher.Constraint("Coincident", 2, 2, 3, 1))
sketch12.addConstraint(Sketcher.Constraint("Coincident", 3, 2, 0, 1))
sketch12.addConstraint(Sketcher.Constraint("Vertical", 0))
sketch12.addConstraint(Sketcher.Constraint("Horizontal", 1))
sketch12.addConstraint(Sketcher.Constraint("Vertical", 2))
sketch12.addConstraint(Sketcher.Constraint("Horizontal", 3))
sketch12.addConstraint(Sketcher.Constraint("DistanceX", 1, 1, 1, 2, Q("20 mm")))
sketch12.addConstraint(Sketcher.Constraint("DistanceY", 0, 2, 0, 1, Q("10 mm")))
sketch12.addConstraint(Sketcher.Constraint("DistanceX", 0, 2, -1, 1, Q("10 mm")))
sketch12.addConstraint(Sketcher.Constraint("DistanceY", -1, 1, 0, 2, Q("12.22 mm")))
sketch12.setExpression("Constraints[8]", "Params.sketch12_width")
sketch12.setExpression("Constraints[9]", "Params.sketch12_height")
pocket4 = doc.addObject("PartDesign::Pocket", "Pocket003")
body.addObject(pocket4)
pocket4.Profile = sketch12
pocket4.setExpression("Length", "Params.pocket4_length")

# Sketch on XY plane
sketch13 = doc.addObject("Sketcher::SketchObject", "Sketch012")
body.addObject(sketch13)
sketch13.AttachmentSupport = (doc.XY_Plane, [""])
sketch13.MapMode = "FlatFace"
sketch13.AttachmentOffset = App.Placement(Vector(0, 0, 30), App.Rotation())
sketch13.addGeometry(Part.Circle(Vector(-32.3, 0, 0), Vector(0, 0, 1), 1.2), False)
sketch13.addConstraint(Sketcher.Constraint("PointOnObject", 0, 3, -1))
sketch13.addConstraint(Sketcher.Constraint("Diameter", 0, Q("2.5 mm")))
sketch13.addConstraint(Sketcher.Constraint("DistanceX", 0, 3, -1, 1, Q("32.33 mm")))
sketch13.setExpression("Constraints[1]", "Params.sketch13_diameter")
pocket5 = doc.addObject("PartDesign::Pocket", "Pocket004")
body.addObject(pocket5)
pocket5.Profile = sketch13
pocket5.Type = "ThroughAll"
doc.recompute()

polarpattern = doc.addObject("PartDesign::PolarPattern", "PolarPattern")
body.addObject(polarpattern)
polarpattern.Originals = [pocket5]
polarpattern.Axis = (doc.Z_Axis, [""])
polarpattern.Angle = 360
polarpattern.Occurrences = 6
body.Tip = polarpattern

# Sketch on XY plane
sketch14 = doc.addObject("Sketcher::SketchObject", "Sketch013")
body.addObject(sketch14)
sketch14.AttachmentSupport = (doc.XY_Plane, [""])
sketch14.MapMode = "FlatFace"
sketch14.AttachmentOffset = App.Placement(Vector(0, 0, 6), App.Rotation())
sketch14.addGeometry(Part.LineSegment(Vector(-13.1, 6.9, 0), Vector(-13.1, -31.1, 0)), False)
sketch14.addGeometry(Part.LineSegment(Vector(-13.1, -31.1, 0), Vector(-10.1, -31.1, 0)), False)
sketch14.addGeometry(Part.LineSegment(Vector(-10.1, -31.1, 0), Vector(-10.1, 6.9, 0)), False)
sketch14.addGeometry(Part.LineSegment(Vector(-10.1, 6.9, 0), Vector(-13.1, 6.9, 0)), False)
sketch14.addConstraint(Sketcher.Constraint("Coincident", 0, 2, 1, 1))
sketch14.addConstraint(Sketcher.Constraint("Coincident", 1, 2, 2, 1))
sketch14.addConstraint(Sketcher.Constraint("Coincident", 2, 2, 3, 1))
sketch14.addConstraint(Sketcher.Constraint("Coincident", 3, 2, 0, 1))
sketch14.addConstraint(Sketcher.Constraint("Vertical", 0))
sketch14.addConstraint(Sketcher.Constraint("Horizontal", 1))
sketch14.addConstraint(Sketcher.Constraint("Vertical", 2))
sketch14.addConstraint(Sketcher.Constraint("Horizontal", 3))
sketch14.addConstraint(Sketcher.Constraint("DistanceX", 1, 1, 1, 2, Q("3 mm")))
sketch14.addConstraint(Sketcher.Constraint("DistanceY", 0, 2, 0, 1, Q("38 mm")))
sketch14.addConstraint(Sketcher.Constraint("DistanceX", 0, 2, -1, 1, Q("13.05 mm")))
sketch14.addConstraint(Sketcher.Constraint("DistanceY", 0, 2, -1, 1, Q("31.105118 mm")))
sketch14.setExpression("Constraints[8]", "Params.sketch14_width")
sketch14.setExpression("Constraints[9]", "Params.sketch14_height")
pocket6 = doc.addObject("PartDesign::Pocket", "Pocket005")
body.addObject(pocket6)
pocket6.Profile = sketch14
pocket6.setExpression("Length", "Params.pocket6_length")

# Sketch on XY plane
sketch15 = doc.addObject("Sketcher::SketchObject", "Sketch014")
body.addObject(sketch15)
sketch15.AttachmentSupport = (doc.XY_Plane, [""])
sketch15.MapMode = "FlatFace"
sketch15.AttachmentOffset = App.Placement(Vector(0, 0, 9), App.Rotation())
sketch15.addGeometry(Part.LineSegment(Vector(-13.1, 8.3, 0), Vector(-13.1, 3.3, 0)), False)
sketch15.addGeometry(Part.LineSegment(Vector(-13.1, 3.3, 0), Vector(-10.1, 3.3, 0)), False)
sketch15.addGeometry(Part.LineSegment(Vector(-10.1, 3.3, 0), Vector(-10.1, 8.3, 0)), False)
sketch15.addGeometry(Part.LineSegment(Vector(-10.1, 8.3, 0), Vector(-13.1, 8.3, 0)), False)
sketch15.addConstraint(Sketcher.Constraint("Coincident", 0, 2, 1, 1))
sketch15.addConstraint(Sketcher.Constraint("Coincident", 1, 2, 2, 1))
sketch15.addConstraint(Sketcher.Constraint("Coincident", 2, 2, 3, 1))
sketch15.addConstraint(Sketcher.Constraint("Coincident", 3, 2, 0, 1))
sketch15.addConstraint(Sketcher.Constraint("Vertical", 0))
sketch15.addConstraint(Sketcher.Constraint("Horizontal", 1))
sketch15.addConstraint(Sketcher.Constraint("Vertical", 2))
sketch15.addConstraint(Sketcher.Constraint("Horizontal", 3))
sketch15.addConstraint(Sketcher.Constraint("DistanceX", 1, 1, 1, 2, Q("3 mm")))
sketch15.addConstraint(Sketcher.Constraint("DistanceY", 0, 2, 0, 1, Q("5 mm")))
sketch15.addConstraint(Sketcher.Constraint("DistanceX", 0, 2, -1, 1, Q("13.05 mm")))
sketch15.addConstraint(Sketcher.Constraint("DistanceY", -1, 1, 0, 2, Q("3.294882 mm")))
sketch15.setExpression("Constraints[8]", "Params.sketch15_width")
sketch15.setExpression("Constraints[9]", "Params.sketch15_height")
pocket7 = doc.addObject("PartDesign::Pocket", "Pocket006")
body.addObject(pocket7)
pocket7.Profile = sketch15
pocket7.setExpression("Length", "Params.pocket7_length")

doc.recompute()
